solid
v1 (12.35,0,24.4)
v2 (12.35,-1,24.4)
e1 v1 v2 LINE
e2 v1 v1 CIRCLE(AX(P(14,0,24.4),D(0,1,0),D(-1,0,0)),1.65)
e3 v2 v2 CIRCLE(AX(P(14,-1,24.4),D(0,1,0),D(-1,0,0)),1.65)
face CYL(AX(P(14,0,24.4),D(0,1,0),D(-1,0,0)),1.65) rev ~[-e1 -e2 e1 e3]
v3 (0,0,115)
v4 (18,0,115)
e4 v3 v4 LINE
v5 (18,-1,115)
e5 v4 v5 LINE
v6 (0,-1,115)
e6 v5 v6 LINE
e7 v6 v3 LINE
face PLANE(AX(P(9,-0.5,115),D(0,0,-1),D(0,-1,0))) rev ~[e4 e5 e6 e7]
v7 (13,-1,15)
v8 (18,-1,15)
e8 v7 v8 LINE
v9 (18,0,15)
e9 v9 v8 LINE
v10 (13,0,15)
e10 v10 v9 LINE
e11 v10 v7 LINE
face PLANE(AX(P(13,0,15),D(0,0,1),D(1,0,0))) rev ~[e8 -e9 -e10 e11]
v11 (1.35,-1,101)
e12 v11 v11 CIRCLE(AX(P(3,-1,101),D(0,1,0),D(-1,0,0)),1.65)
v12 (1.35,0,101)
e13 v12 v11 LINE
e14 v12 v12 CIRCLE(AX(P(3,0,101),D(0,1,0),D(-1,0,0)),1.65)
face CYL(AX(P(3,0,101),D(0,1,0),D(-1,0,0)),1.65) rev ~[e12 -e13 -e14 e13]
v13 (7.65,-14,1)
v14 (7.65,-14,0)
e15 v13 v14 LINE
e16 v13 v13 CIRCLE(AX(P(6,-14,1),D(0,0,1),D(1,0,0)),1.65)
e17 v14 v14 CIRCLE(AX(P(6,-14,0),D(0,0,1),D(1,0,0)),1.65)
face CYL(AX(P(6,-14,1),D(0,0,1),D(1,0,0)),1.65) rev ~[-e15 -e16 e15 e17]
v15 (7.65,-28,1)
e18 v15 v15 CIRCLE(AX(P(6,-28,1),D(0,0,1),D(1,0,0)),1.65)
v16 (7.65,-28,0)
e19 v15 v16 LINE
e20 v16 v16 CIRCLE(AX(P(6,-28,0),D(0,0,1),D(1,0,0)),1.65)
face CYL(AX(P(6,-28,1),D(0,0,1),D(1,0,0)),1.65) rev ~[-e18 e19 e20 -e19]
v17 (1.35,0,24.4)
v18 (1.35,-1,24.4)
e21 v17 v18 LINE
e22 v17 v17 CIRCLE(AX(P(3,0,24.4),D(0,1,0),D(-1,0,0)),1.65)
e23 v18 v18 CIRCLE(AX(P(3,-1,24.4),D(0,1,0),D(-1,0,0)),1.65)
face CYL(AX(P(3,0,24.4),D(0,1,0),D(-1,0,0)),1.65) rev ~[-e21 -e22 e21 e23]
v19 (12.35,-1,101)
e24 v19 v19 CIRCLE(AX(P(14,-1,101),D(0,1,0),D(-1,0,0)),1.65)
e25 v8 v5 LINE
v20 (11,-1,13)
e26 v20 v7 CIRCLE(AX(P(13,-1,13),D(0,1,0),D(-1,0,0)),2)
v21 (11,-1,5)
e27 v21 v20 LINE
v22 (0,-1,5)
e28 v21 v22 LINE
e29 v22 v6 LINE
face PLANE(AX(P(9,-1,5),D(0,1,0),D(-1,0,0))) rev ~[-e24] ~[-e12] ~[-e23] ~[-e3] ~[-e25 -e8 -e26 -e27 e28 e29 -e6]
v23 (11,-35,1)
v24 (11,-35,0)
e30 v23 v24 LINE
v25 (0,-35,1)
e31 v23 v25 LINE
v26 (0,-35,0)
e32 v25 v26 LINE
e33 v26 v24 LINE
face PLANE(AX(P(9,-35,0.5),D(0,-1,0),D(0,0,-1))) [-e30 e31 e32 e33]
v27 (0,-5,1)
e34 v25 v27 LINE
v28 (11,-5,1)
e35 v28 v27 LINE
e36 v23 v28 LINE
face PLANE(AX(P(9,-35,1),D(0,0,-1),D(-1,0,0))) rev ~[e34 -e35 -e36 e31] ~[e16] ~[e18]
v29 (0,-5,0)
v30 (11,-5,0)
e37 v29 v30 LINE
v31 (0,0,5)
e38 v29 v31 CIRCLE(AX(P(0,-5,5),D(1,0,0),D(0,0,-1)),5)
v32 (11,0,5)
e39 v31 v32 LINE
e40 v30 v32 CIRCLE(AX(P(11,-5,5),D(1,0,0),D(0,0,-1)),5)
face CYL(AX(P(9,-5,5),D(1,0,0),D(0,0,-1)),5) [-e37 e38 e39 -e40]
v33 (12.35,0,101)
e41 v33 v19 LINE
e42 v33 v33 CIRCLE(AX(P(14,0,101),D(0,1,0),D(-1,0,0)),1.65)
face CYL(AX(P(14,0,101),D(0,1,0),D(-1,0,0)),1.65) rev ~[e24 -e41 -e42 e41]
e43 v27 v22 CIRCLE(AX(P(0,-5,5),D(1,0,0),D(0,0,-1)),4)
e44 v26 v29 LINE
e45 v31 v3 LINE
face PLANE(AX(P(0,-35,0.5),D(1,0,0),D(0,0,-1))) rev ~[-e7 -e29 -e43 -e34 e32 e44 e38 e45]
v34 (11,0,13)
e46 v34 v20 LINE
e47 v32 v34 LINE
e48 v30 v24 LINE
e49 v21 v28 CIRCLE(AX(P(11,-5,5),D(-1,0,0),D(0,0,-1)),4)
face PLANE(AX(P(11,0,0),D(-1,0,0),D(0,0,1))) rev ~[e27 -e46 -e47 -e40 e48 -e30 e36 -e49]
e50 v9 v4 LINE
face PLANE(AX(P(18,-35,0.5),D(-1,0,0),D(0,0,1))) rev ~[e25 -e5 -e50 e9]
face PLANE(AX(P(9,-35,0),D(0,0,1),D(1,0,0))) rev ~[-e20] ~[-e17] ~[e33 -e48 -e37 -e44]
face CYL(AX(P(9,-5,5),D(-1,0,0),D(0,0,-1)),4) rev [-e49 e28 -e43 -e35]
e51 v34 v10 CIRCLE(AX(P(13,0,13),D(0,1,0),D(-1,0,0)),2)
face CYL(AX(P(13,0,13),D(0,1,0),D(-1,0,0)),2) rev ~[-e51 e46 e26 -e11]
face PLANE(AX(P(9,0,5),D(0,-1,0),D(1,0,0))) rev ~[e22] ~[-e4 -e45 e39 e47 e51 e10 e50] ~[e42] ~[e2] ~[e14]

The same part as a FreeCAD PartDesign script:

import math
import FreeCAD as App
import Part
import Sketcher


def add_polygon(sketch, points):
    """Adds a closed chain of lines whose ends are joined by coincident constraints."""
    first, n = sketch.GeometryCount, len(points)
    for a, b in zip(points, points[1:] + points[:1]):
        sketch.addGeometry(Part.LineSegment(App.Vector(*a, 0), App.Vector(*b, 0)), False)
    for i in range(n):
        sketch.addConstraint(Sketcher.Constraint("Coincident", first + i, 2, first + (i + 1) % n, 1))

doc = App.newDocument("Part")
body = doc.addObject("PartDesign::Body", "Body")

# Sketch on XZ plane
sketch1 = doc.addObject("Sketcher::SketchObject", "Sketch")
body.addObject(sketch1)
sketch1.AttachmentSupport = (doc.XZ_Plane, [""])
sketch1.MapMode = "FlatFace"
sketch1.AttachmentOffset = App.Placement(App.Vector(0, 0, 35), App.Rotation())
add_polygon(sketch1, [(0, 1), (0, 0), (18, 0), (18, 1)])  # lines 0-3
sketch1.addConstraint(Sketcher.Constraint("Vertical", 0))
sketch1.addConstraint(Sketcher.Constraint("Horizontal", 1))
sketch1.addConstraint(Sketcher.Constraint("Vertical", 2))
sketch1.addConstraint(Sketcher.Constraint("Horizontal", 3))
sketch1.addConstraint(Sketcher.Constraint("Coincident", 0, 2, -1, 1))
sketch1.addConstraint(Sketcher.Constraint("DistanceX", 1, 1, 1, 2, 18.0))
sketch1.addConstraint(Sketcher.Constraint("DistanceY", 0, 2, 0, 1, 1.0))

# Sketch on YZ plane
sketch2 = doc.addObject("Sketcher::SketchObject", "Sketch001")
body.addObject(sketch2)
sketch2.AttachmentSupport = (doc.YZ_Plane, [""])
sketch2.MapMode = "FlatFace"
sketch2.addGeometry(Part.LineSegment(App.Vector(-35, 0, 0), App.Vector(-5, 0, 0)), False)
sketch2.addGeometry(Part.ArcOfCircle(Part.Circle(App.Vector(-5, 5, 0), App.Vector(0, 0, 1), 5), math.radians(-90), math.radians(0)), False)
sketch2.addGeometry(Part.LineSegment(App.Vector(0, 5, 0), App.Vector(0, 115, 0)), False)
sketch2.addConstraint(Sketcher.Constraint("Tangent", 0, 2, 1, 1))
sketch2.addConstraint(Sketcher.Constraint("Tangent", 1, 2, 2, 1))
sketch2.addConstraint(Sketcher.Constraint("Horizontal", 0))
sketch2.addConstraint(Sketcher.Constraint("Vertical", 2))
sketch2.addConstraint(Sketcher.Constraint("PointOnObject", 0, 1, -1))
sketch2.addConstraint(Sketcher.Constraint("PointOnObject", 1, 2, -2))
sketch2.addConstraint(Sketcher.Constraint("Radius", 1, 5.0))
sketch2.addConstraint(Sketcher.Constraint("DistanceX", 0, 1, 0, 2, 30.0))
sketch2.addConstraint(Sketcher.Constraint("DistanceY", 2, 1, 2, 2, 110.0))
doc.recompute()

additivepipe = doc.addObject("PartDesign::AdditivePipe", "AdditivePipe")
body.addObject(additivepipe)
additivepipe.Profile = sketch1
additivepipe.Spine = (sketch2, ["Edge1", "Edge2", "Edge3"])

# Sketch on XY plane
sketch3 = doc.addObject("Sketcher::SketchObject", "Sketch002")
body.addObject(sketch3)
sketch3.AttachmentSupport = (doc.XY_Plane, [""])
sketch3.MapMode = "FlatFace"
sketch3.AttachmentOffset = App.Placement(App.Vector(0, 0, 1), App.Rotation())
sketch3.addGeometry(Part.Circle(App.Vector(6, -14, 0), App.Vector(0, 0, 1), 1.65), False)
sketch3.addGeometry(Part.Circle(App.Vector(6, -28, 0), App.Vector(0, 0, 1), 1.65), False)
sketch3.addConstraint(Sketcher.Constraint("Equal", 0, 1))
sketch3.addConstraint(Sketcher.Constraint("Vertical", 0, 3, 1, 3))
sketch3.addConstraint(Sketcher.Constraint("Diameter", 0, 3.3))
sketch3.addConstraint(Sketcher.Constraint("DistanceX", -1, 1, 0, 3, 6.0))
sketch3.addConstraint(Sketcher.Constraint("DistanceY", 0, 3, -1, 1, 14.0))
sketch3.addConstraint(Sketcher.Constraint("DistanceY", 1, 3, -1, 1, 28.0))
pocket1 = doc.addObject("PartDesign::Pocket", "Pocket")
body.addObject(pocket1)
pocket1.Profile = sketch3
pocket1.Type = "ThroughAll"

# Sketch on XZ plane
sketch4 = doc.addObject("Sketcher::SketchObject", "Sketch003")
body.addObject(sketch4)
sketch4.AttachmentSupport = (doc.XZ_Plane, [""])
sketch4.MapMode = "FlatFace"
sketch4.addGeometry(Part.Circle(App.Vector(3, 24.4, 0), App.Vector(0, 0, 1), 1.65), False)
sketch4.addGeometry(Part.Circle(App.Vector(14, 24.4, 0), App.Vector(0, 0, 1), 1.65), False)
sketch4.addGeometry(Part.Circle(App.Vector(14, 101, 0), App.Vector(0, 0, 1), 1.65), False)
sketch4.addGeometry(Part.Circle(App.Vector(3, 101, 0), App.Vector(0, 0, 1), 1.65), False)
sketch4.addGeometry(Part.LineSegment(App.Vector(18, 15, 0), App.Vector(18, 0, 0)), False)
sketch4.addGeometry(Part.LineSegment(App.Vector(18, 0, 0), App.Vector(11, 0, 0)), False)
sketch4.addGeometry(Part.LineSegment(App.Vector(11, 0, 0), App.Vector(11, 13, 0)), False)
sketch4.addGeometry(Part.ArcOfCircle(Part.Circle(App.Vector(13, 13, 0), App.Vector(0, 0, 1), 2), math.radians(90), math.radians(180)), False)
sketch4.addGeometry(Part.LineSegment(App.Vector(13, 15, 0), App.Vector(18, 15, 0)), False)
sketch4.addConstraint(Sketcher.Constraint("Coincident", 4, 2, 5, 1))
sketch4.addConstraint(Sketcher.Constraint("Coincident", 5, 2, 6, 1))
sketch4.addConstraint(Sketcher.Constraint("Tangent", 6, 2, 7, 2))
sketch4.addConstraint(Sketcher.Constraint("Tangent", 7, 1, 8, 1))
sketch4.addConstraint(Sketcher.Constraint("Coincident", 8, 2, 4, 1))
sketch4.addConstraint(Sketcher.Constraint("Vertical", 4))
sketch4.addConstraint(Sketcher.Constraint("Horizontal", 5))
sketch4.addConstraint(Sketcher.Constraint("Vertical", 6))
sketch4.addConstraint(Sketcher.Constraint("Horizontal", 8))
sketch4.addConstraint(Sketcher.Constraint("Equal", 0, 1))
sketch4.addConstraint(Sketcher.Constraint("Equal", 1, 2))
sketch4.addConstraint(Sketcher.Constraint("Equal", 2, 3))
sketch4.addConstraint(Sketcher.Constraint("PointOnObject", 4, 2, -1))
sketch4.addConstraint(Sketcher.Constraint("Horizontal", 0, 3, 1, 3))
sketch4.addConstraint(Sketcher.Constraint("Horizontal", 2, 3, 3, 3))
sketch4.addConstraint(Sketcher.Constraint("Vertical", 1, 3, 2, 3))
sketch4.addConstraint(Sketcher.Constraint("Vertical", 0, 3, 3, 3))
sketch4.addConstraint(Sketcher.Constraint("Radius", 7, 2.0))
sketch4.addConstraint(Sketcher.Constraint("Diameter", 0, 3.3))
sketch4.addConstraint(Sketcher.Constraint("DistanceX", 5, 2, 5, 1, 7.0))
sketch4.addConstraint(Sketcher.Constraint("DistanceY", 4, 2, 4, 1, 15.0))
sketch4.addConstraint(Sketcher.Constraint("DistanceX", -1, 1, 0, 3, 3.0))
sketch4.addConstraint(Sketcher.Constraint("DistanceX", -1, 1, 1, 3, 14.0))
sketch4.addConstraint(Sketcher.Constraint("DistanceY", -1, 1, 2, 3, 101.0))
sketch4.addConstraint(Sketcher.Constraint("DistanceX", -1, 1, 7, 3, 13.0))
sketch4.addConstraint(Sketcher.Constraint("DistanceY", -1, 1, 0, 3, 24.4))
pocket2 = doc.addObject("PartDesign::Pocket", "Pocket001")
body.addObject(pocket2)
pocket2.Profile = sketch4
pocket2.Type = "ThroughAll"
pocket2.Reversed = True

doc.recompute()
